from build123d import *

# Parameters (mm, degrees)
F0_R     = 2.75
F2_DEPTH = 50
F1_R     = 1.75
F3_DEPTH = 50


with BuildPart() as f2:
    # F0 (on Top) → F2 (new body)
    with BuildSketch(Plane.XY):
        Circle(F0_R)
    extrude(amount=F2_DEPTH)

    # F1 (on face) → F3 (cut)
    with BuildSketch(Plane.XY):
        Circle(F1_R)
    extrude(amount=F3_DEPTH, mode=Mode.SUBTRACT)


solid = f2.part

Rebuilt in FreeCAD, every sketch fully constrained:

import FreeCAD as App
import Part
import Sketcher
from FreeCAD import Vector

doc = App.newDocument("Part")
body = doc.addObject("PartDesign::Body", "Body")

# Sketch on XY plane
sketch1 = body.newObject("Sketcher::SketchObject", "Sketch")
sketch1.AttachmentSupport = (doc.getObject("XY_Plane"), [""])
sketch1.MapMode = "FlatFace"
sketch1.addGeometry(Part.Circle(Vector(0, 0, 0), Vector(0, 0, 1), 2.75), False)
sketch1.addConstraint([
    Sketcher.Constraint("Coincident", 0, 3, -1, 1),
    Sketcher.Constraint("Diameter", 0, 5.5),
])
pad1 = body.newObject("PartDesign::Pad", "Pad")
pad1.Profile = sketch1
pad1.Length = 50

# Sketch on XY plane
sketch2 = body.newObject("Sketcher::SketchObject", "Sketch001")
sketch2.AttachmentSupport = (doc.getObject("XY_Plane"), [""])
sketch2.MapMode = "FlatFace"
sketch2.addGeometry(Part.Circle(Vector(0, 0, 0), Vector(0, 0, 1), 1.75), False)
sketch2.addConstraint([
    Sketcher.Constraint("Coincident", 0, 3, -1, 1),
    Sketcher.Constraint("Diameter", 0, 3.5),
])
pocket1 = body.newObject("PartDesign::Pocket", "Pocket")
pocket1.Profile = sketch2
pocket1.Length = 50
pocket1.Reversed = True

doc.recompute()
